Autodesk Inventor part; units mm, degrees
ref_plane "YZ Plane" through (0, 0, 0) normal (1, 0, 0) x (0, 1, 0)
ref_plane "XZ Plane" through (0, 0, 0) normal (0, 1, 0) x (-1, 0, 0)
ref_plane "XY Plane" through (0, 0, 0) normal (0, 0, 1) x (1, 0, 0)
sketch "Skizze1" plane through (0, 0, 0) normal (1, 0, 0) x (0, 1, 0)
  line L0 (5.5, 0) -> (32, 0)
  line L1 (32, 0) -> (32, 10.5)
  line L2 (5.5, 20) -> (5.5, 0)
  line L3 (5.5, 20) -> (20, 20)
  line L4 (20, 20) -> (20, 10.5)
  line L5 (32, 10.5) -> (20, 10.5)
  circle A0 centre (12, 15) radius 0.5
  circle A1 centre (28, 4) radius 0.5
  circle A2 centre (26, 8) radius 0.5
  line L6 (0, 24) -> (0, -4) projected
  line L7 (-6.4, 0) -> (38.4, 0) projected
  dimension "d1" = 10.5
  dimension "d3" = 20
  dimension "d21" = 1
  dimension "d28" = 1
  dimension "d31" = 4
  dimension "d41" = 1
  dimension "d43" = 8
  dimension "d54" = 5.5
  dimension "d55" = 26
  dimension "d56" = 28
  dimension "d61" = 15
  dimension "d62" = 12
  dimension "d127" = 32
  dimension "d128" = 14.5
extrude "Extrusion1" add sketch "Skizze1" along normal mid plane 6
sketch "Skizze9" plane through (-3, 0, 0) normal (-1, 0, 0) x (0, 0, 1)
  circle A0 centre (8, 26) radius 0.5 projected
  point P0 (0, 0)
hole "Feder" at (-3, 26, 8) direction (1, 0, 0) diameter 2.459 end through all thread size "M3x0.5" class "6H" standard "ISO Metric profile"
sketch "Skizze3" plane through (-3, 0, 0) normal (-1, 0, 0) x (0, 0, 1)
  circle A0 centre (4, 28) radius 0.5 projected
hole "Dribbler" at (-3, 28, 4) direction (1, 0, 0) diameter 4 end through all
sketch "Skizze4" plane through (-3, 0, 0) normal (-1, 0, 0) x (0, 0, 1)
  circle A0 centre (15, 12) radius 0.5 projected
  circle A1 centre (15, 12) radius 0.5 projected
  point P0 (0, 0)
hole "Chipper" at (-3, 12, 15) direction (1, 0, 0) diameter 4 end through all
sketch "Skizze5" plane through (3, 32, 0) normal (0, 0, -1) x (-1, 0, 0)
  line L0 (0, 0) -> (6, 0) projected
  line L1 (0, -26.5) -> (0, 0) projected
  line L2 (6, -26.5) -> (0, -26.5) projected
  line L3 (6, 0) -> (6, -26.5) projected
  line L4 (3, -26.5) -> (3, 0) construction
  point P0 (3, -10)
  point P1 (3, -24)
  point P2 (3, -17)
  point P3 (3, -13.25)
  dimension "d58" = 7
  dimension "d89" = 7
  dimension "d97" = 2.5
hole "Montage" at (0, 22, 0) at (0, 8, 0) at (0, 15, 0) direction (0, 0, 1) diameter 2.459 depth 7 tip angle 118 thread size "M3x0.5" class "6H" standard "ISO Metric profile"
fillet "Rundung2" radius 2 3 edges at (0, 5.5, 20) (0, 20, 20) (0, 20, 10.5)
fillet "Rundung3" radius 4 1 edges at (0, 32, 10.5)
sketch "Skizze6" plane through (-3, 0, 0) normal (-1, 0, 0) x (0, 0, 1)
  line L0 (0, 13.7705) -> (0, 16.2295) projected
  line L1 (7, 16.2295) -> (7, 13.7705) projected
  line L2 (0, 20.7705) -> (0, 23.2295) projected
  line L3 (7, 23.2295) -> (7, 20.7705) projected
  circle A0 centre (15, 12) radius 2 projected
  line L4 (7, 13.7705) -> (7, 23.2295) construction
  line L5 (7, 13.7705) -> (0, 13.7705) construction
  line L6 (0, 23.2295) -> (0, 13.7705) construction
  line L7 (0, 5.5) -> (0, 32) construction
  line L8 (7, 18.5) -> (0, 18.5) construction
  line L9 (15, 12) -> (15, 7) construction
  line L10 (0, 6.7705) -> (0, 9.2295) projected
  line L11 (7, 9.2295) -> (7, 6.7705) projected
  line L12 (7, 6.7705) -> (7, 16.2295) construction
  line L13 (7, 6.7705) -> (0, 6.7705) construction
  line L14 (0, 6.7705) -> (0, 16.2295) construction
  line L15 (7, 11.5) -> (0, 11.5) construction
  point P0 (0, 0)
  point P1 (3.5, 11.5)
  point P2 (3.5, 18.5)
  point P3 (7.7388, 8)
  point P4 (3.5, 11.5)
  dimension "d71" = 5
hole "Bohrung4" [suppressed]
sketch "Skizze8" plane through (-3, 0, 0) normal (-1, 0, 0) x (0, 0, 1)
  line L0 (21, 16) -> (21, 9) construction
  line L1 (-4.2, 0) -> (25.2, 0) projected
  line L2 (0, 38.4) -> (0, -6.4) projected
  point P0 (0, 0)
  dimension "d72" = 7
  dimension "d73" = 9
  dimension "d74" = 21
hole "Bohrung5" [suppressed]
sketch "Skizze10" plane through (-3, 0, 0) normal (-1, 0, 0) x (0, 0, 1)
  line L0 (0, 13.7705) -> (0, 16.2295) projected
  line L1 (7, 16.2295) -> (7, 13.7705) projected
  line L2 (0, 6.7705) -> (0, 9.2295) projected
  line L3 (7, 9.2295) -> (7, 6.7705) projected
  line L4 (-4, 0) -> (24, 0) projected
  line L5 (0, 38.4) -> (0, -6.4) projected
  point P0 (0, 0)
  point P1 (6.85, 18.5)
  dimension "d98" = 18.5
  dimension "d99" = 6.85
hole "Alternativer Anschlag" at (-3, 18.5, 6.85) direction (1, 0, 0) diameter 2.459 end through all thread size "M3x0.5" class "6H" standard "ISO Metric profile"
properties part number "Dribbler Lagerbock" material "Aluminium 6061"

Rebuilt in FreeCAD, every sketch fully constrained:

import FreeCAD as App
import Part
import Sketcher

V = App.Vector


def edges_at(feature, points):
    """Names of the edges that pass closest to the given points."""
    edges = feature.Shape.Edges
    near = lambda p: min(range(len(edges)), key=lambda i: edges[i].distToShape(Part.Vertex(*p))[0])
    return sorted({f"Edge{near(p) + 1}" for p in points})


def add_polygon(sketch, points):
    """Adds a closed chain of lines whose ends are joined by coincident constraints."""
    first, n = sketch.GeometryCount, len(points)
    for a, b in zip(points, points[1:] + points[:1]):
        sketch.addGeometry(Part.LineSegment(App.Vector(*a, 0), App.Vector(*b, 0)), False)
    for i in range(n):
        sketch.addConstraint(Sketcher.Constraint("Coincident", first + i, 2, first + (i + 1) % n, 1))

doc = App.newDocument("Part")
body = doc.addObject("PartDesign::Body", "Body")

sketch1 = doc.addObject("Sketcher::SketchObject", "Sketch")
body.addObject(sketch1)
sketch1.AttachmentSupport = (doc.YZ_Plane, [""])
sketch1.MapMode = "FlatFace"
add_polygon(sketch1, [(5.5, 20), (5.5, 0), (32, 0), (32, 10.5), (20, 10.5), (20, 20)])
sketch1.addGeometry(Part.Circle(V(28, 4, 0), V(0, 0, 1), 0.5), False)
sketch1.addGeometry(Part.Circle(V(26, 8, 0), V(0, 0, 1), 0.5), False)
sketch1.addGeometry(Part.Circle(V(12, 15, 0), V(0, 0, 1), 0.5), False)
sketch1.addConstraint(Sketcher.Constraint("Vertical", 0))
sketch1.addConstraint(Sketcher.Constraint("Horizontal", 1))
sketch1.addConstraint(Sketcher.Constraint("Vertical", 2))
sketch1.addConstraint(Sketcher.Constraint("Horizontal", 3))
sketch1.addConstraint(Sketcher.Constraint("Vertical", 4))
sketch1.addConstraint(Sketcher.Constraint("Horizontal", 5))
sketch1.addConstraint(Sketcher.Constraint("Equal", 6, 7))
sketch1.addConstraint(Sketcher.Constraint("Equal", 7, 8))
sketch1.addConstraint(Sketcher.Constraint("PointOnObject", 0, 2, -1))
sketch1.addConstraint(Sketcher.Constraint("Diameter", 6, 1.0))
sketch1.addConstraint(Sketcher.Constraint("DistanceX", 3, 2, 3, 1, 12.0))
sketch1.addConstraint(Sketcher.Constraint("DistanceY", 0, 2, 0, 1, 20.0))
sketch1.addConstraint(Sketcher.Constraint("DistanceX", 5, 2, 5, 1, 14.5))
sketch1.addConstraint(Sketcher.Constraint("DistanceY", 2, 1, 2, 2, 10.5))
sketch1.addConstraint(Sketcher.Constraint("DistanceX", -1, 1, 6, 3, 28.0))
sketch1.addConstraint(Sketcher.Constraint("DistanceY", -1, 1, 6, 3, 4.0))
sketch1.addConstraint(Sketcher.Constraint("DistanceX", -1, 1, 7, 3, 26.0))
sketch1.addConstraint(Sketcher.Constraint("DistanceY", -1, 1, 7, 3, 8.0))
sketch1.addConstraint(Sketcher.Constraint("DistanceX", -1, 1, 8, 3, 12.0))
sketch1.addConstraint(Sketcher.Constraint("DistanceY", -1, 1, 8, 3, 15.0))
sketch1.addConstraint(Sketcher.Constraint("DistanceX", -1, 1, 1, 2, 32.0))
pad1 = doc.addObject("PartDesign::Pad", "Pad")
body.addObject(pad1)
pad1.Profile = sketch1
pad1.Length = 6
pad1.Midplane = True

sketch2 = doc.addObject("Sketcher::SketchObject", "Sketch001")
body.addObject(sketch2)
sketch2.AttachmentSupport = (doc.YZ_Plane, [""])
sketch2.MapMode = "FlatFace"
sketch2.AttachmentOffset = App.Placement(V(0, 0, -3), App.Rotation())
sketch2.addGeometry(Part.Circle(V(26, 8, 0), V(0, 0, 1), 1.2), False)
sketch2.addConstraint(Sketcher.Constraint("Diameter", 0, 2.459))
sketch2.addConstraint(Sketcher.Constraint("DistanceX", -1, 1, 0, 3, 26.0))
sketch2.addConstraint(Sketcher.Constraint("DistanceY", -1, 1, 0, 3, 8.0))
doc.recompute()
hole = doc.addObject("PartDesign::Hole", "Hole")
body.addObject(hole)
hole.Profile = sketch2
hole.ThreadType = "None"
hole.Diameter = 2.459
hole.DepthType = "ThroughAll"
hole.Reversed = True

sketch3 = doc.addObject("Sketcher::SketchObject", "Sketch002")
body.addObject(sketch3)
sketch3.AttachmentSupport = (doc.YZ_Plane, [""])
sketch3.MapMode = "FlatFace"
sketch3.AttachmentOffset = App.Placement(V(0, 0, -3), App.Rotation())
sketch3.addGeometry(Part.Circle(V(28, 4, 0), V(0, 0, 1), 2), False)
sketch3.addConstraint(Sketcher.Constraint("Diameter", 0, 4.0))
sketch3.addConstraint(Sketcher.Constraint("DistanceX", -1, 1, 0, 3, 28.0))
sketch3.addConstraint(Sketcher.Constraint("DistanceY", -1, 1, 0, 3, 4.0))
doc.recompute()
hole2 = doc.addObject("PartDesign::Hole", "Hole001")
body.addObject(hole2)
hole2.Profile = sketch3
hole2.ThreadType = "None"
hole2.Diameter = 4
hole2.DepthType = "ThroughAll"
hole2.Reversed = True

sketch4 = doc.addObject("Sketcher::SketchObject", "Sketch003")
body.addObject(sketch4)
sketch4.AttachmentSupport = (doc.YZ_Plane, [""])
sketch4.MapMode = "FlatFace"
sketch4.AttachmentOffset = App.Placement(V(0, 0, -3), App.Rotation())
sketch4.addGeometry(Part.Circle(V(12, 15, 0), V(0, 0, 1), 2), False)
sketch4.addConstraint(Sketcher.Constraint("Diameter", 0, 4.0))
sketch4.addConstraint(Sketcher.Constraint("DistanceX", -1, 1, 0, 3, 12.0))
sketch4.addConstraint(Sketcher.Constraint("DistanceY", -1, 1, 0, 3, 15.0))
doc.recompute()
hole3 = doc.addObject("PartDesign::Hole", "Hole002")
body.addObject(hole3)
hole3.Profile = sketch4
hole3.ThreadType = "None"
hole3.Diameter = 4
hole3.DepthType = "ThroughAll"
hole3.Reversed = True

sketch5 = doc.addObject("Sketcher::SketchObject", "Sketch004")
body.addObject(sketch5)
sketch5.AttachmentSupport = (doc.XY_Plane, [""])
sketch5.MapMode = "FlatFace"
sketch5.addGeometry(Part.Circle(V(0, 22, 0), V(0, 0, 1), 1.2), False)
sketch5.addGeometry(Part.Circle(V(0, 8, 0), V(0, 0, 1), 1.2), False)
sketch5.addGeometry(Part.Circle(V(0, 15, 0), V(0, 0, 1), 1.2), False)
sketch5.addConstraint(Sketcher.Constraint("Equal", 0, 1))
sketch5.addConstraint(Sketcher.Constraint("Equal", 1, 2))
sketch5.addConstraint(Sketcher.Constraint("PointOnObject", 0, 3, -2))
sketch5.addConstraint(Sketcher.Constraint("PointOnObject", 1, 3, -2))
sketch5.addConstraint(Sketcher.Constraint("PointOnObject", 2, 3, -2))
sketch5.addConstraint(Sketcher.Constraint("Diameter", 0, 2.459))
sketch5.addConstraint(Sketcher.Constraint("DistanceY", -1, 1, 0, 3, 22.0))
sketch5.addConstraint(Sketcher.Constraint("DistanceY", -1, 1, 1, 3, 8.0))
sketch5.addConstraint(Sketcher.Constraint("DistanceY", -1, 1, 2, 3, 15.0))
doc.recompute()
hole4 = doc.addObject("PartDesign::Hole", "Hole003")
body.addObject(hole4)
hole4.Profile = sketch5
hole4.ThreadType = "None"
hole4.Diameter = 2.459
hole4.DepthType = "Dimension"
hole4.Depth = 7
hole4.DrillPoint = "Angled"
hole4.DrillPointAngle = 118
hole4.Reversed = True
doc.recompute()

fillet = doc.addObject("PartDesign::Fillet", "Fillet")
body.addObject(fillet)
fillet.Base = (hole4, edges_at(hole4, [(0, 5.5, 20), (0, 20, 20), (0, 20, 10.5)]))
fillet.Radius = 2
doc.recompute()

fillet2 = doc.addObject("PartDesign::Fillet", "Fillet001")
body.addObject(fillet2)
fillet2.Base = (fillet, edges_at(fillet, [(0, 32, 10.5)]))
fillet2.Radius = 4

sketch6 = doc.addObject("Sketcher::SketchObject", "Sketch005")
body.addObject(sketch6)
sketch6.AttachmentSupport = (doc.YZ_Plane, [""])
sketch6.MapMode = "FlatFace"
sketch6.AttachmentOffset = App.Placement(V(0, 0, -3), App.Rotation())
sketch6.addGeometry(Part.Circle(V(18.5, 6.8, 0), V(0, 0, 1), 1.2), False)
sketch6.addConstraint(Sketcher.Constraint("Diameter", 0, 2.459))
sketch6.addConstraint(Sketcher.Constraint("DistanceX", -1, 1, 0, 3, 18.5))
sketch6.addConstraint(Sketcher.Constraint("DistanceY", -1, 1, 0, 3, 6.85))
doc.recompute()
hole5 = doc.addObject("PartDesign::Hole", "Hole004")
body.addObject(hole5)
hole5.Profile = sketch6
hole5.ThreadType = "None"
hole5.Diameter = 2.459
hole5.DepthType = "ThroughAll"
hole5.Reversed = True

doc.recompute()
